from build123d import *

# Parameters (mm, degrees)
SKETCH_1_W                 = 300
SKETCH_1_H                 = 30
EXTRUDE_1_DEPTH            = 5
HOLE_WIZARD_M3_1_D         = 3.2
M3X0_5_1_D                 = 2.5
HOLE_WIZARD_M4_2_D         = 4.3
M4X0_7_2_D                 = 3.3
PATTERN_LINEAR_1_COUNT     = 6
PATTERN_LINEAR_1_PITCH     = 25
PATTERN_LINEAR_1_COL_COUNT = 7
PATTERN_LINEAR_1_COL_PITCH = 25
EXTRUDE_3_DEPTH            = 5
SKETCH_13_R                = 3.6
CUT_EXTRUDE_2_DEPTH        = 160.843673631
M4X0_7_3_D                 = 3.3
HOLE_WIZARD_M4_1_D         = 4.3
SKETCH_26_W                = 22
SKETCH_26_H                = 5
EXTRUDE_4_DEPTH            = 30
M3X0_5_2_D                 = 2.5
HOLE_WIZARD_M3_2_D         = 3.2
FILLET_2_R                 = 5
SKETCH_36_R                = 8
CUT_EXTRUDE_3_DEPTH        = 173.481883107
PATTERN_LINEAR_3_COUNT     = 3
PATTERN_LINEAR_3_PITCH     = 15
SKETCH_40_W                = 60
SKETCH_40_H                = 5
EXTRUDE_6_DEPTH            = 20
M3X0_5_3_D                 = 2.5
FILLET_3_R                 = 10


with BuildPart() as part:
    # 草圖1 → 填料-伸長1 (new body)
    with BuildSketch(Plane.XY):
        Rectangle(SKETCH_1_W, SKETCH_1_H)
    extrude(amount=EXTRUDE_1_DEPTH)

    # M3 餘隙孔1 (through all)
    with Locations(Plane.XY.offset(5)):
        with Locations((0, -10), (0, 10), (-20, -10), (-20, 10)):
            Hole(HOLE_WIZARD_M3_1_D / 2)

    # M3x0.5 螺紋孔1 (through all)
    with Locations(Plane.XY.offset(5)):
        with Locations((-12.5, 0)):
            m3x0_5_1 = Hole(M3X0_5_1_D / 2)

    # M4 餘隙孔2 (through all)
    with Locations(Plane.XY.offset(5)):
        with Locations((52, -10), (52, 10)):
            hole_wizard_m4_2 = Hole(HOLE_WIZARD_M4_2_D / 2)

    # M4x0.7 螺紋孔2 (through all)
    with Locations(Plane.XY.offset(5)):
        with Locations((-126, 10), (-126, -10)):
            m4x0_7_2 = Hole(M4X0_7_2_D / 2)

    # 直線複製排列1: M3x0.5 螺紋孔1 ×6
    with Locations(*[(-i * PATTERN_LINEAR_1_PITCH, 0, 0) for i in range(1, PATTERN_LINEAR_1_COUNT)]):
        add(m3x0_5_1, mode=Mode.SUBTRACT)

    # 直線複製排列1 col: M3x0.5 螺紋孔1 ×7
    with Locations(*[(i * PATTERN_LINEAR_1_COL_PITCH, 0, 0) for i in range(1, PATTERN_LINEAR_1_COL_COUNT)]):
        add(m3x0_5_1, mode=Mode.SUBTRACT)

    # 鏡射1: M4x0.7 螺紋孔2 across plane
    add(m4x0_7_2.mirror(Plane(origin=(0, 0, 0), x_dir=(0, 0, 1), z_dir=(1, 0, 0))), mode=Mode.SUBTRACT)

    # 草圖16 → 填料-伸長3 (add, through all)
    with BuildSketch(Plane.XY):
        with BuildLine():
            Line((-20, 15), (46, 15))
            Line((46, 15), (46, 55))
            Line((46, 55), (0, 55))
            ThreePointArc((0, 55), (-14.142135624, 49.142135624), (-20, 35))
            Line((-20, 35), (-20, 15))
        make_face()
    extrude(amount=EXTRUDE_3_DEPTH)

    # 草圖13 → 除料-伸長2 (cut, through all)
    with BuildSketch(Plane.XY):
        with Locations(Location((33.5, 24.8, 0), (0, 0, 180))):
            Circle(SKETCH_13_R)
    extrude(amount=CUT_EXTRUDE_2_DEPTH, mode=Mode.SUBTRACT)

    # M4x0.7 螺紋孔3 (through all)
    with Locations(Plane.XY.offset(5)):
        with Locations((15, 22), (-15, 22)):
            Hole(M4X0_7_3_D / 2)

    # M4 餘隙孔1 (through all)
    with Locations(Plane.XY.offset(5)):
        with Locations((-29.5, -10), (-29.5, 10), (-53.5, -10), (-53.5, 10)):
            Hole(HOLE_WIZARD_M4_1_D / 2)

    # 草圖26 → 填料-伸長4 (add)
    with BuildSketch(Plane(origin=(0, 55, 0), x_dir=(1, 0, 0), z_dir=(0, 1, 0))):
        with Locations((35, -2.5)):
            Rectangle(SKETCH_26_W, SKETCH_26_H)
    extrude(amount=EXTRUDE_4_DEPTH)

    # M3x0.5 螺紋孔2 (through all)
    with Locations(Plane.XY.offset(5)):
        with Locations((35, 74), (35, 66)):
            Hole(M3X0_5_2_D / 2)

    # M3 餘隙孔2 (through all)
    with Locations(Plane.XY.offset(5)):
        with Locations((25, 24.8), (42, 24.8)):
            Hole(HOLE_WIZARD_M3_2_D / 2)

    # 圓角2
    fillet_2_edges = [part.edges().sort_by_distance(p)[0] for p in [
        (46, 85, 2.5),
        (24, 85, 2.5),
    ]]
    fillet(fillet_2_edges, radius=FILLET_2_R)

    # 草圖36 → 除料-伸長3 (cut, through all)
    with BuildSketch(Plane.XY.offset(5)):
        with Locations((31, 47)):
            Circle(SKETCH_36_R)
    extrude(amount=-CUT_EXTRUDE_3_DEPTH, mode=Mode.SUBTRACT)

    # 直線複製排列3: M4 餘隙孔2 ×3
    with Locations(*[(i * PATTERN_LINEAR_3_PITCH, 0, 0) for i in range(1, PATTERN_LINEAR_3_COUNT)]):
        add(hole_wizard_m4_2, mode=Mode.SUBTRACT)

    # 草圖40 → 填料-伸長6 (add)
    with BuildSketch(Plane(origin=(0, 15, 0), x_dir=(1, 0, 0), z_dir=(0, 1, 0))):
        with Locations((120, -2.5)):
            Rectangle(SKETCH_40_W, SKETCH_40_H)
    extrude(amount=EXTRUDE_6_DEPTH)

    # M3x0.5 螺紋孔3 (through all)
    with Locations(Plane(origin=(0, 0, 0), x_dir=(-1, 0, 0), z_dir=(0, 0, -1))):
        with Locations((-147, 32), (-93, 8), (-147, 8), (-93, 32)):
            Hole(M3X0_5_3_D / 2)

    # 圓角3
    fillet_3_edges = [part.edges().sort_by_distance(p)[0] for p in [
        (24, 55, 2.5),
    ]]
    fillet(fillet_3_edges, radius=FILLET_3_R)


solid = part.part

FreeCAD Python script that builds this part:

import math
import FreeCAD as App
import Part
import Sketcher
Q = App.Units.Quantity


def edges_at(feature, points):
    """Names of the edges that pass closest to the given points."""
    edges = feature.Shape.Edges
    near = lambda p: min(range(len(edges)), key=lambda i: edges[i].distToShape(Part.Vertex(*p))[0])
    return sorted({f"Edge{near(p) + 1}" for p in points})

doc = App.newDocument("Part")
body = doc.addObject("PartDesign::Body", "Body")

# Sketch on XY plane
sketch1 = doc.addObject("Sketcher::SketchObject", "Sketch")
body.addObject(sketch1)
sketch1.AttachmentSupport = (doc.XY_Plane, [""])
sketch1.MapMode = "FlatFace"
sketch1.addGeometry([
    Part.LineSegment(App.Vector(-150, 15, 0), App.Vector(-150, -15, 0)),
    Part.LineSegment(App.Vector(-150, -15, 0), App.Vector(150, -15, 0)),
    Part.LineSegment(App.Vector(150, -15, 0), App.Vector(150, 15, 0)),
    Part.LineSegment(App.Vector(150, 15, 0), App.Vector(-150, 15, 0)),
], False)
sketch1.addConstraint([
    Sketcher.Constraint("Coincident", 0, 2, 1, 1),
    Sketcher.Constraint("Coincident", 1, 2, 2, 1),
    Sketcher.Constraint("Coincident", 2, 2, 3, 1),
    Sketcher.Constraint("Coincident", 3, 2, 0, 1),
    Sketcher.Constraint("Vertical", 0),
    Sketcher.Constraint("Horizontal", 1),
    Sketcher.Constraint("Vertical", 2),
    Sketcher.Constraint("Horizontal", 3),
    Sketcher.Constraint("Symmetric", 0, 2, 2, 2, -1, 1),
    Sketcher.Constraint("DistanceX", 1, 1, 1, 2, Q("300 mm")),
    Sketcher.Constraint("DistanceY", 0, 2, 0, 1, Q("30 mm")),
])
pad1 = doc.addObject("PartDesign::Pad", "Pad")
body.addObject(pad1)
pad1.Profile = sketch1
pad1.Length = 5

# Sketch on XY plane
sketch2 = doc.addObject("Sketcher::SketchObject", "Sketch001")
body.addObject(sketch2)
sketch2.AttachmentSupport = (doc.XY_Plane, [""])
sketch2.MapMode = "FlatFace"
sketch2.AttachmentOffset = App.Placement(App.Vector(0, 0, 5), App.Rotation())
sketch2.addGeometry([
    Part.Circle(App.Vector(0, -10, 0), App.Vector(0, 0, 1), 1.6),
    Part.Circle(App.Vector(0, 10, 0), App.Vector(0, 0, 1), 1.6),
    Part.Circle(App.Vector(-20, -10, 0), App.Vector(0, 0, 1), 1.6),
    Part.Circle(App.Vector(-20, 10, 0), App.Vector(0, 0, 1), 1.6),
], False)
sketch2.addConstraint([
    Sketcher.Constraint("Equal", 0, 1),
    Sketcher.Constraint("Equal", 1, 2),
    Sketcher.Constraint("Equal", 2, 3),
    Sketcher.Constraint("Symmetric", 0, 3, 1, 3, -1, 1),
    Sketcher.Constraint("Symmetric", 2, 3, 3, 3, -1),
    Sketcher.Constraint("PointOnObject", 0, 3, -2),
    Sketcher.Constraint("Horizontal", 0, 3, 2, 3),
    Sketcher.Constraint("Diameter", 0, Q("3.2 mm")),
    Sketcher.Constraint("DistanceY", 0, 3, -1, 1, Q("10 mm")),
    Sketcher.Constraint("DistanceX", 2, 3, -1, 1, Q("20 mm")),
])
doc.recompute()
hole = doc.addObject("PartDesign::Hole", "Hole")
body.addObject(hole)
hole.Profile = sketch2
hole.ThreadType = "None"
hole.Diameter = 3.2
hole.DepthType = "ThroughAll"

# Sketch on XY plane
sketch3 = doc.addObject("Sketcher::SketchObject", "Sketch002")
body.addObject(sketch3)
sketch3.AttachmentSupport = (doc.XY_Plane, [""])
sketch3.MapMode = "FlatFace"
sketch3.AttachmentOffset = App.Placement(App.Vector(0, 0, 5), App.Rotation())
sketch3.addGeometry(Part.Circle(App.Vector(-12.5, 0, 0), App.Vector(0, 0, 1), 1.25), False)
sketch3.addConstraint([
    Sketcher.Constraint("PointOnObject", 0, 3, -1),
    Sketcher.Constraint("Diameter", 0, Q("2.5 mm")),
    Sketcher.Constraint("DistanceX", 0, 3, -1, 1, Q("12.5 mm")),
])
doc.recompute()
hole2 = doc.addObject("PartDesign::Hole", "Hole001")
body.addObject(hole2)
hole2.Profile = sketch3
hole2.ThreadType = "None"
hole2.Diameter = 2.5
hole2.DepthType = "ThroughAll"

# Sketch on XY plane
sketch4 = doc.addObject("Sketcher::SketchObject", "Sketch003")
body.addObject(sketch4)
sketch4.AttachmentSupport = (doc.XY_Plane, [""])
sketch4.MapMode = "FlatFace"
sketch4.AttachmentOffset = App.Placement(App.Vector(0, 0, 5), App.Rotation())
sketch4.addGeometry([
    Part.Circle(App.Vector(52, -10, 0), App.Vector(0, 0, 1), 2.15),
    Part.Circle(App.Vector(52, 10, 0), App.Vector(0, 0, 1), 2.15),
], False)
sketch4.addConstraint([
    Sketcher.Constraint("Equal", 0, 1),
    Sketcher.Constraint("Symmetric", 0, 3, 1, 3, -1),
    Sketcher.Constraint("Diameter", 0, Q("4.3 mm")),
    Sketcher.Constraint("DistanceX", -1, 1, 0, 3, Q("52 mm")),
    Sketcher.Constraint("DistanceY", 0, 3, -1, 1, Q("10 mm")),
])
doc.recompute()
hole3 = doc.addObject("PartDesign::Hole", "Hole002")
body.addObject(hole3)
hole3.Profile = sketch4
hole3.ThreadType = "None"
hole3.Diameter = 4.3
hole3.DepthType = "ThroughAll"

# Sketch on XY plane
sketch5 = doc.addObject("Sketcher::SketchObject", "Sketch004")
body.addObject(sketch5)
sketch5.AttachmentSupport = (doc.XY_Plane, [""])
sketch5.MapMode = "FlatFace"
sketch5.AttachmentOffset = App.Placement(App.Vector(0, 0, 5), App.Rotation())
sketch5.addGeometry([
    Part.Circle(App.Vector(-126, 10, 0), App.Vector(0, 0, 1), 1.65),
    Part.Circle(App.Vector(-126, -10, 0), App.Vector(0, 0, 1), 1.65),
], False)
sketch5.addConstraint([
    Sketcher.Constraint("Equal", 0, 1),
    Sketcher.Constraint("Symmetric", 0, 3, 1, 3, -1),
    Sketcher.Constraint("Diameter", 0, Q("3.3 mm")),
    Sketcher.Constraint("DistanceX", 0, 3, -1, 1, Q("126 mm")),
    Sketcher.Constraint("DistanceY", -1, 1, 0, 3, Q("10 mm")),
])
doc.recompute()
hole4 = doc.addObject("PartDesign::Hole", "Hole003")
body.addObject(hole4)
hole4.Profile = sketch5
hole4.ThreadType = "None"
hole4.Diameter = 3.3
hole4.DepthType = "ThroughAll"
doc.recompute()

linearpattern = doc.addObject("PartDesign::LinearPattern", "LinearPattern")
body.addObject(linearpattern)
linearpattern.Originals = [hole2]
linearpattern.Direction = (doc.X_Axis, [""])
linearpattern.Mode = "offset"
linearpattern.Offset = 25
linearpattern.Occurrences = 6
linearpattern.Reversed = True
body.Tip = linearpattern
doc.recompute()

linearpattern2 = doc.addObject("PartDesign::LinearPattern", "LinearPattern001")
body.addObject(linearpattern2)
linearpattern2.Originals = [hole2]
linearpattern2.Direction = (doc.X_Axis, [""])
linearpattern2.Mode = "offset"
linearpattern2.Offset = 25
linearpattern2.Occurrences = 7
body.Tip = linearpattern2
doc.recompute()

mirrored = doc.addObject("PartDesign::Mirrored", "Mirrored")
body.addObject(mirrored)
mirrored.Originals = [hole4]
mirrored.MirrorPlane = (doc.YZ_Plane, [""])
body.Tip = mirrored

# Sketch on XY plane
sketch6 = doc.addObject("Sketcher::SketchObject", "Sketch005")
body.addObject(sketch6)
sketch6.AttachmentSupport = (doc.XY_Plane, [""])
sketch6.MapMode = "FlatFace"
sketch6.addGeometry([
    Part.LineSegment(App.Vector(-20, 15, 0), App.Vector(46, 15, 0)),  # 0
    Part.LineSegment(App.Vector(46, 15, 0), App.Vector(46, 55, 0)),  # 1
    Part.LineSegment(App.Vector(46, 55, 0), App.Vector(0, 55, 0)),  # 2
    Part.ArcOfCircle(Part.Circle(App.Vector(0, 35, 0), App.Vector(0, 0, 1), 20), math.radians(90), math.radians(180)),  # 3
    Part.LineSegment(App.Vector(-20, 35, 0), App.Vector(-20, 15, 0)),  # 4
], False)
sketch6.addConstraint([
    Sketcher.Constraint("Coincident", 0, 2, 1, 1),
    Sketcher.Constraint("Coincident", 1, 2, 2, 1),
    Sketcher.Constraint("Tangent", 2, 2, 3, 1),
    Sketcher.Constraint("Tangent", 3, 2, 4, 1),
    Sketcher.Constraint("Coincident", 4, 2, 0, 1),
    Sketcher.Constraint("Horizontal", 0),
    Sketcher.Constraint("Vertical", 1),
    Sketcher.Constraint("Horizontal", 2),
    Sketcher.Constraint("Vertical", 4),
    Sketcher.Constraint("PointOnObject", 3, 3, -2),
    Sketcher.Constraint("Radius", 3, Q("20 mm")),
    Sketcher.Constraint("DistanceX", 0, 1, 0, 2, Q("66 mm")),
    Sketcher.Constraint("DistanceY", 1, 1, 1, 2, Q("40 mm")),
    Sketcher.Constraint("DistanceY", -1, 1, 3, 3, Q("35 mm")),
])
pad2 = doc.addObject("PartDesign::Pad", "Pad001")
body.addObject(pad2)
pad2.Profile = sketch6
pad2.Length = 5

# Sketch on XY plane
sketch7 = doc.addObject("Sketcher::SketchObject", "Sketch006")
body.addObject(sketch7)
sketch7.AttachmentSupport = (doc.XY_Plane, [""])
sketch7.MapMode = "FlatFace"
sketch7.addGeometry(Part.Circle(App.Vector(33.5, 24.8, 0), App.Vector(0, 0, 1), 3.6), False)
sketch7.addConstraint([
    Sketcher.Constraint("Diameter", 0, Q("7.2 mm")),
    Sketcher.Constraint("DistanceX", -1, 1, 0, 3, Q("33.5 mm")),
    Sketcher.Constraint("DistanceY", -1, 1, 0, 3, Q("24.8 mm")),
])
pocket1 = doc.addObject("PartDesign::Pocket", "Pocket")
body.addObject(pocket1)
pocket1.Profile = sketch7
pocket1.Type = "ThroughAll"
pocket1.Reversed = True

# Sketch on XY plane
sketch8 = doc.addObject("Sketcher::SketchObject", "Sketch007")
body.addObject(sketch8)
sketch8.AttachmentSupport = (doc.XY_Plane, [""])
sketch8.MapMode = "FlatFace"
sketch8.AttachmentOffset = App.Placement(App.Vector(0, 0, 5), App.Rotation())
sketch8.addGeometry([
    Part.Circle(App.Vector(15, 22, 0), App.Vector(0, 0, 1), 1.65),
    Part.Circle(App.Vector(-15, 22, 0), App.Vector(0, 0, 1), 1.65),
], False)
sketch8.addConstraint([
    Sketcher.Constraint("Equal", 0, 1),
    Sketcher.Constraint("Symmetric", 0, 3, 1, 3, -2),
    Sketcher.Constraint("Diameter", 0, Q("3.3 mm")),
    Sketcher.Constraint("DistanceX", -1, 1, 0, 3, Q("15 mm")),
    Sketcher.Constraint("DistanceY", -1, 1, 0, 3, Q("22 mm")),
])
doc.recompute()
hole5 = doc.addObject("PartDesign::Hole", "Hole004")
body.addObject(hole5)
hole5.Profile = sketch8
hole5.ThreadType = "None"
hole5.Diameter = 3.3
hole5.DepthType = "ThroughAll"

# Sketch on XY plane
sketch9 = doc.addObject("Sketcher::SketchObject", "Sketch008")
body.addObject(sketch9)
sketch9.AttachmentSupport = (doc.XY_Plane, [""])
sketch9.MapMode = "FlatFace"
sketch9.AttachmentOffset = App.Placement(App.Vector(0, 0, 5), App.Rotation())
sketch9.addGeometry([
    Part.Circle(App.Vector(-29.5, -10, 0), App.Vector(0, 0, 1), 2.15),
    Part.Circle(App.Vector(-29.5, 10, 0), App.Vector(0, 0, 1), 2.15),
    Part.Circle(App.Vector(-53.5, -10, 0), App.Vector(0, 0, 1), 2.15),
    Part.Circle(App.Vector(-53.5, 10, 0), App.Vector(0, 0, 1), 2.15),
], False)
sketch9.addConstraint([
    Sketcher.Constraint("Equal", 0, 1),
    Sketcher.Constraint("Equal", 1, 2),
    Sketcher.Constraint("Equal", 2, 3),
    Sketcher.Constraint("Symmetric", 0, 3, 1, 3, -1),
    Sketcher.Constraint("Symmetric", 2, 3, 3, 3, -1),
    Sketcher.Constraint("Horizontal", 0, 3, 2, 3),
    Sketcher.Constraint("Diameter", 0, Q("4.3 mm")),
    Sketcher.Constraint("DistanceY", 0, 3, -1, 1, Q("10 mm")),
    Sketcher.Constraint("DistanceX", 2, 3, 0, 3, Q("24 mm")),
    Sketcher.Constraint("DistanceX", 0, 3, -1, 1, Q("29.5 mm")),
])
doc.recompute()
hole6 = doc.addObject("PartDesign::Hole", "Hole005")
body.addObject(hole6)
hole6.Profile = sketch9
hole6.ThreadType = "None"
hole6.Diameter = 4.3
hole6.DepthType = "ThroughAll"

# Sketch on XZ plane
sketch10 = doc.addObject("Sketcher::SketchObject", "Sketch009")
body.addObject(sketch10)
sketch10.AttachmentSupport = (doc.XZ_Plane, [""])
sketch10.MapMode = "FlatFace"
sketch10.AttachmentOffset = App.Placement(App.Vector(0, 0, -55), App.Rotation())
sketch10.addGeometry([
    Part.LineSegment(App.Vector(24, 0, 0), App.Vector(24, 5, 0)),
    Part.LineSegment(App.Vector(24, 5, 0), App.Vector(46, 5, 0)),
    Part.LineSegment(App.Vector(46, 5, 0), App.Vector(46, 0, 0)),
    Part.LineSegment(App.Vector(46, 0, 0), App.Vector(24, 0, 0)),
], False)
sketch10.addConstraint([
    Sketcher.Constraint("Coincident", 0, 2, 1, 1),
    Sketcher.Constraint("Coincident", 1, 2, 2, 1),
    Sketcher.Constraint("Coincident", 2, 2, 3, 1),
    Sketcher.Constraint("Coincident", 3, 2, 0, 1),
    Sketcher.Constraint("Vertical", 0),
    Sketcher.Constraint("Horizontal", 1),
    Sketcher.Constraint("Vertical", 2),
    Sketcher.Constraint("Horizontal", 3),
    Sketcher.Constraint("PointOnObject", 2, 2, -1),
    Sketcher.Constraint("DistanceX", 1, 1, 1, 2, Q("22 mm")),
    Sketcher.Constraint("DistanceY", 0, 1, 0, 2, Q("5 mm")),
    Sketcher.Constraint("DistanceX", -1, 1, 0, 2, Q("24 mm")),
])
pad3 = doc.addObject("PartDesign::Pad", "Pad002")
body.addObject(pad3)
pad3.Profile = sketch10
pad3.Length = 30
pad3.Reversed = True

# Sketch on XY plane
sketch11 = doc.addObject("Sketcher::SketchObject", "Sketch010")
body.addObject(sketch11)
sketch11.AttachmentSupport = (doc.XY_Plane, [""])
sketch11.MapMode = "FlatFace"
sketch11.AttachmentOffset = App.Placement(App.Vector(0, 0, 5), App.Rotation())
sketch11.addGeometry([
    Part.Circle(App.Vector(35, 74, 0), App.Vector(0, 0, 1), 1.25),
    Part.Circle(App.Vector(35, 66, 0), App.Vector(0, 0, 1), 1.25),
], False)
sketch11.addConstraint([
    Sketcher.Constraint("Equal", 0, 1),
    Sketcher.Constraint("Vertical", 0, 3, 1, 3),
    Sketcher.Constraint("Diameter", 0, Q("2.5 mm")),
    Sketcher.Constraint("DistanceX", -1, 1, 0, 3, Q("35 mm")),
    Sketcher.Constraint("DistanceY", -1, 1, 0, 3, Q("74 mm")),
    Sketcher.Constraint("DistanceY", -1, 1, 1, 3, Q("66 mm")),
])
doc.recompute()
hole7 = doc.addObject("PartDesign::Hole", "Hole006")
body.addObject(hole7)
hole7.Profile = sketch11
hole7.ThreadType = "None"
hole7.Diameter = 2.5
hole7.DepthType = "ThroughAll"

# Sketch on XY plane
sketch12 = doc.addObject("Sketcher::SketchObject", "Sketch011")
body.addObject(sketch12)
sketch12.AttachmentSupport = (doc.XY_Plane, [""])
sketch12.MapMode = "FlatFace"
sketch12.AttachmentOffset = App.Placement(App.Vector(0, 0, 5), App.Rotation())
sketch12.addGeometry([
    Part.Circle(App.Vector(25, 24.8, 0), App.Vector(0, 0, 1), 1.6),
    Part.Circle(App.Vector(42, 24.8, 0), App.Vector(0, 0, 1), 1.6),
], False)
sketch12.addConstraint([
    Sketcher.Constraint("Equal", 0, 1),
    Sketcher.Constraint("Horizontal", 0, 3, 1, 3),
    Sketcher.Constraint("Diameter", 0, Q("3.2 mm")),
    Sketcher.Constraint("DistanceX", -1, 1, 0, 3, Q("25 mm")),
    Sketcher.Constraint("DistanceX", -1, 1, 1, 3, Q("42 mm")),
    Sketcher.Constraint("DistanceY", -1, 1, 0, 3, Q("24.8 mm")),
])
doc.recompute()
hole8 = doc.addObject("PartDesign::Hole", "Hole007")
body.addObject(hole8)
hole8.Profile = sketch12
hole8.ThreadType = "None"
hole8.Diameter = 3.2
hole8.DepthType = "ThroughAll"
doc.recompute()

fillet = doc.addObject("PartDesign::Fillet", "Fillet")
body.addObject(fillet)
fillet.Base = (hole8, edges_at(hole8, [(46, 85, 2.5), (24, 85, 2.5)]))
fillet.Radius = 5

# Sketch on XY plane
sketch13 = doc.addObject("Sketcher::SketchObject", "Sketch012")
body.addObject(sketch13)
sketch13.AttachmentSupport = (doc.XY_Plane, [""])
sketch13.MapMode = "FlatFace"
sketch13.AttachmentOffset = App.Placement(App.Vector(0, 0, 5), App.Rotation())
sketch13.addGeometry(Part.Circle(App.Vector(31, 47, 0), App.Vector(0, 0, 1), 8), False)
sketch13.addConstraint([
    Sketcher.Constraint("Diameter", 0, Q("16 mm")),
    Sketcher.Constraint("DistanceX", -1, 1, 0, 3, Q("31 mm")),
    Sketcher.Constraint("DistanceY", -1, 1, 0, 3, Q("47 mm")),
])
pocket2 = doc.addObject("PartDesign::Pocket", "Pocket001")
body.addObject(pocket2)
pocket2.Profile = sketch13
pocket2.Type = "ThroughAll"
doc.recompute()

linearpattern3 = doc.addObject("PartDesign::LinearPattern", "LinearPattern002")
body.addObject(linearpattern3)
linearpattern3.Originals = [hole3]
linearpattern3.Direction = (doc.X_Axis, [""])
linearpattern3.Mode = "offset"
linearpattern3.Offset = 15
linearpattern3.Occurrences = 3
body.Tip = linearpattern3

# Sketch on XZ plane
sketch14 = doc.addObject("Sketcher::SketchObject", "Sketch013")
body.addObject(sketch14)
sketch14.AttachmentSupport = (doc.XZ_Plane, [""])
sketch14.MapMode = "FlatFace"
sketch14.AttachmentOffset = App.Placement(App.Vector(0, 0, -15), App.Rotation())
sketch14.addGeometry([
    Part.LineSegment(App.Vector(90, 0, 0), App.Vector(90, 5, 0)),
    Part.LineSegment(App.Vector(90, 5, 0), App.Vector(150, 5, 0)),
    Part.LineSegment(App.Vector(150, 5, 0), App.Vector(150, 0, 0)),
    Part.LineSegment(App.Vector(150, 0, 0), App.Vector(90, 0, 0)),
], False)
sketch14.addConstraint([
    Sketcher.Constraint("Coincident", 0, 2, 1, 1),
    Sketcher.Constraint("Coincident", 1, 2, 2, 1),
    Sketcher.Constraint("Coincident", 2, 2, 3, 1),
    Sketcher.Constraint("Coincident", 3, 2, 0, 1),
    Sketcher.Constraint("Vertical", 0),
    Sketcher.Constraint("Horizontal", 1),
    Sketcher.Constraint("Vertical", 2),
    Sketcher.Constraint("Horizontal", 3),
    Sketcher.Constraint("PointOnObject", 2, 2, -1),
    Sketcher.Constraint("DistanceX", 1, 1, 1, 2, Q("60 mm")),
    Sketcher.Constraint("DistanceY", 0, 1, 0, 2, Q("5 mm")),
    Sketcher.Constraint("DistanceX", -1, 1, 0, 2, Q("90 mm")),
])
pad4 = doc.addObject("PartDesign::Pad", "Pad003")
body.addObject(pad4)
pad4.Profile = sketch14
pad4.Length = 20
pad4.Reversed = True

# Sketch on XY plane
sketch15 = doc.addObject("Sketcher::SketchObject", "Sketch014")
body.addObject(sketch15)
sketch15.AttachmentSupport = (doc.XY_Plane, [""])
sketch15.MapMode = "FlatFace"
sketch15.addGeometry([
    Part.Circle(App.Vector(147, 32, 0), App.Vector(0, 0, 1), 1.25),
    Part.Circle(App.Vector(93, 8, 0), App.Vector(0, 0, 1), 1.25),
    Part.Circle(App.Vector(147, 8, 0), App.Vector(0, 0, 1), 1.25),
    Part.Circle(App.Vector(93, 32, 0), App.Vector(0, 0, 1), 1.25),
], False)
sketch15.addConstraint([
    Sketcher.Constraint("Equal", 0, 1),
    Sketcher.Constraint("Equal", 1, 2),
    Sketcher.Constraint("Equal", 2, 3),
    Sketcher.Constraint("Horizontal", 1, 3, 2, 3),
    Sketcher.Constraint("Horizontal", 0, 3, 3, 3),
    Sketcher.Constraint("Vertical", 0, 3, 2, 3),
    Sketcher.Constraint("Vertical", 1, 3, 3, 3),
    Sketcher.Constraint("Diameter", 0, Q("2.5 mm")),
    Sketcher.Constraint("DistanceX", -1, 1, 0, 3, Q("147 mm")),
    Sketcher.Constraint("DistanceY", -1, 1, 0, 3, Q("32 mm")),
    Sketcher.Constraint("DistanceX", -1, 1, 1, 3, Q("93 mm")),
    Sketcher.Constraint("DistanceY", -1, 1, 1, 3, Q("8 mm")),
])
doc.recompute()
hole9 = doc.addObject("PartDesign::Hole", "Hole008")
body.addObject(hole9)
hole9.Profile = sketch15
hole9.ThreadType = "None"
hole9.Diameter = 2.5
hole9.DepthType = "ThroughAll"
hole9.Reversed = True
doc.recompute()

fillet2 = doc.addObject("PartDesign::Fillet", "Fillet001")
body.addObject(fillet2)
fillet2.Base = (hole9, edges_at(hole9, [(24, 55, 2.5)]))
fillet2.Radius = 10

doc.recompute()
